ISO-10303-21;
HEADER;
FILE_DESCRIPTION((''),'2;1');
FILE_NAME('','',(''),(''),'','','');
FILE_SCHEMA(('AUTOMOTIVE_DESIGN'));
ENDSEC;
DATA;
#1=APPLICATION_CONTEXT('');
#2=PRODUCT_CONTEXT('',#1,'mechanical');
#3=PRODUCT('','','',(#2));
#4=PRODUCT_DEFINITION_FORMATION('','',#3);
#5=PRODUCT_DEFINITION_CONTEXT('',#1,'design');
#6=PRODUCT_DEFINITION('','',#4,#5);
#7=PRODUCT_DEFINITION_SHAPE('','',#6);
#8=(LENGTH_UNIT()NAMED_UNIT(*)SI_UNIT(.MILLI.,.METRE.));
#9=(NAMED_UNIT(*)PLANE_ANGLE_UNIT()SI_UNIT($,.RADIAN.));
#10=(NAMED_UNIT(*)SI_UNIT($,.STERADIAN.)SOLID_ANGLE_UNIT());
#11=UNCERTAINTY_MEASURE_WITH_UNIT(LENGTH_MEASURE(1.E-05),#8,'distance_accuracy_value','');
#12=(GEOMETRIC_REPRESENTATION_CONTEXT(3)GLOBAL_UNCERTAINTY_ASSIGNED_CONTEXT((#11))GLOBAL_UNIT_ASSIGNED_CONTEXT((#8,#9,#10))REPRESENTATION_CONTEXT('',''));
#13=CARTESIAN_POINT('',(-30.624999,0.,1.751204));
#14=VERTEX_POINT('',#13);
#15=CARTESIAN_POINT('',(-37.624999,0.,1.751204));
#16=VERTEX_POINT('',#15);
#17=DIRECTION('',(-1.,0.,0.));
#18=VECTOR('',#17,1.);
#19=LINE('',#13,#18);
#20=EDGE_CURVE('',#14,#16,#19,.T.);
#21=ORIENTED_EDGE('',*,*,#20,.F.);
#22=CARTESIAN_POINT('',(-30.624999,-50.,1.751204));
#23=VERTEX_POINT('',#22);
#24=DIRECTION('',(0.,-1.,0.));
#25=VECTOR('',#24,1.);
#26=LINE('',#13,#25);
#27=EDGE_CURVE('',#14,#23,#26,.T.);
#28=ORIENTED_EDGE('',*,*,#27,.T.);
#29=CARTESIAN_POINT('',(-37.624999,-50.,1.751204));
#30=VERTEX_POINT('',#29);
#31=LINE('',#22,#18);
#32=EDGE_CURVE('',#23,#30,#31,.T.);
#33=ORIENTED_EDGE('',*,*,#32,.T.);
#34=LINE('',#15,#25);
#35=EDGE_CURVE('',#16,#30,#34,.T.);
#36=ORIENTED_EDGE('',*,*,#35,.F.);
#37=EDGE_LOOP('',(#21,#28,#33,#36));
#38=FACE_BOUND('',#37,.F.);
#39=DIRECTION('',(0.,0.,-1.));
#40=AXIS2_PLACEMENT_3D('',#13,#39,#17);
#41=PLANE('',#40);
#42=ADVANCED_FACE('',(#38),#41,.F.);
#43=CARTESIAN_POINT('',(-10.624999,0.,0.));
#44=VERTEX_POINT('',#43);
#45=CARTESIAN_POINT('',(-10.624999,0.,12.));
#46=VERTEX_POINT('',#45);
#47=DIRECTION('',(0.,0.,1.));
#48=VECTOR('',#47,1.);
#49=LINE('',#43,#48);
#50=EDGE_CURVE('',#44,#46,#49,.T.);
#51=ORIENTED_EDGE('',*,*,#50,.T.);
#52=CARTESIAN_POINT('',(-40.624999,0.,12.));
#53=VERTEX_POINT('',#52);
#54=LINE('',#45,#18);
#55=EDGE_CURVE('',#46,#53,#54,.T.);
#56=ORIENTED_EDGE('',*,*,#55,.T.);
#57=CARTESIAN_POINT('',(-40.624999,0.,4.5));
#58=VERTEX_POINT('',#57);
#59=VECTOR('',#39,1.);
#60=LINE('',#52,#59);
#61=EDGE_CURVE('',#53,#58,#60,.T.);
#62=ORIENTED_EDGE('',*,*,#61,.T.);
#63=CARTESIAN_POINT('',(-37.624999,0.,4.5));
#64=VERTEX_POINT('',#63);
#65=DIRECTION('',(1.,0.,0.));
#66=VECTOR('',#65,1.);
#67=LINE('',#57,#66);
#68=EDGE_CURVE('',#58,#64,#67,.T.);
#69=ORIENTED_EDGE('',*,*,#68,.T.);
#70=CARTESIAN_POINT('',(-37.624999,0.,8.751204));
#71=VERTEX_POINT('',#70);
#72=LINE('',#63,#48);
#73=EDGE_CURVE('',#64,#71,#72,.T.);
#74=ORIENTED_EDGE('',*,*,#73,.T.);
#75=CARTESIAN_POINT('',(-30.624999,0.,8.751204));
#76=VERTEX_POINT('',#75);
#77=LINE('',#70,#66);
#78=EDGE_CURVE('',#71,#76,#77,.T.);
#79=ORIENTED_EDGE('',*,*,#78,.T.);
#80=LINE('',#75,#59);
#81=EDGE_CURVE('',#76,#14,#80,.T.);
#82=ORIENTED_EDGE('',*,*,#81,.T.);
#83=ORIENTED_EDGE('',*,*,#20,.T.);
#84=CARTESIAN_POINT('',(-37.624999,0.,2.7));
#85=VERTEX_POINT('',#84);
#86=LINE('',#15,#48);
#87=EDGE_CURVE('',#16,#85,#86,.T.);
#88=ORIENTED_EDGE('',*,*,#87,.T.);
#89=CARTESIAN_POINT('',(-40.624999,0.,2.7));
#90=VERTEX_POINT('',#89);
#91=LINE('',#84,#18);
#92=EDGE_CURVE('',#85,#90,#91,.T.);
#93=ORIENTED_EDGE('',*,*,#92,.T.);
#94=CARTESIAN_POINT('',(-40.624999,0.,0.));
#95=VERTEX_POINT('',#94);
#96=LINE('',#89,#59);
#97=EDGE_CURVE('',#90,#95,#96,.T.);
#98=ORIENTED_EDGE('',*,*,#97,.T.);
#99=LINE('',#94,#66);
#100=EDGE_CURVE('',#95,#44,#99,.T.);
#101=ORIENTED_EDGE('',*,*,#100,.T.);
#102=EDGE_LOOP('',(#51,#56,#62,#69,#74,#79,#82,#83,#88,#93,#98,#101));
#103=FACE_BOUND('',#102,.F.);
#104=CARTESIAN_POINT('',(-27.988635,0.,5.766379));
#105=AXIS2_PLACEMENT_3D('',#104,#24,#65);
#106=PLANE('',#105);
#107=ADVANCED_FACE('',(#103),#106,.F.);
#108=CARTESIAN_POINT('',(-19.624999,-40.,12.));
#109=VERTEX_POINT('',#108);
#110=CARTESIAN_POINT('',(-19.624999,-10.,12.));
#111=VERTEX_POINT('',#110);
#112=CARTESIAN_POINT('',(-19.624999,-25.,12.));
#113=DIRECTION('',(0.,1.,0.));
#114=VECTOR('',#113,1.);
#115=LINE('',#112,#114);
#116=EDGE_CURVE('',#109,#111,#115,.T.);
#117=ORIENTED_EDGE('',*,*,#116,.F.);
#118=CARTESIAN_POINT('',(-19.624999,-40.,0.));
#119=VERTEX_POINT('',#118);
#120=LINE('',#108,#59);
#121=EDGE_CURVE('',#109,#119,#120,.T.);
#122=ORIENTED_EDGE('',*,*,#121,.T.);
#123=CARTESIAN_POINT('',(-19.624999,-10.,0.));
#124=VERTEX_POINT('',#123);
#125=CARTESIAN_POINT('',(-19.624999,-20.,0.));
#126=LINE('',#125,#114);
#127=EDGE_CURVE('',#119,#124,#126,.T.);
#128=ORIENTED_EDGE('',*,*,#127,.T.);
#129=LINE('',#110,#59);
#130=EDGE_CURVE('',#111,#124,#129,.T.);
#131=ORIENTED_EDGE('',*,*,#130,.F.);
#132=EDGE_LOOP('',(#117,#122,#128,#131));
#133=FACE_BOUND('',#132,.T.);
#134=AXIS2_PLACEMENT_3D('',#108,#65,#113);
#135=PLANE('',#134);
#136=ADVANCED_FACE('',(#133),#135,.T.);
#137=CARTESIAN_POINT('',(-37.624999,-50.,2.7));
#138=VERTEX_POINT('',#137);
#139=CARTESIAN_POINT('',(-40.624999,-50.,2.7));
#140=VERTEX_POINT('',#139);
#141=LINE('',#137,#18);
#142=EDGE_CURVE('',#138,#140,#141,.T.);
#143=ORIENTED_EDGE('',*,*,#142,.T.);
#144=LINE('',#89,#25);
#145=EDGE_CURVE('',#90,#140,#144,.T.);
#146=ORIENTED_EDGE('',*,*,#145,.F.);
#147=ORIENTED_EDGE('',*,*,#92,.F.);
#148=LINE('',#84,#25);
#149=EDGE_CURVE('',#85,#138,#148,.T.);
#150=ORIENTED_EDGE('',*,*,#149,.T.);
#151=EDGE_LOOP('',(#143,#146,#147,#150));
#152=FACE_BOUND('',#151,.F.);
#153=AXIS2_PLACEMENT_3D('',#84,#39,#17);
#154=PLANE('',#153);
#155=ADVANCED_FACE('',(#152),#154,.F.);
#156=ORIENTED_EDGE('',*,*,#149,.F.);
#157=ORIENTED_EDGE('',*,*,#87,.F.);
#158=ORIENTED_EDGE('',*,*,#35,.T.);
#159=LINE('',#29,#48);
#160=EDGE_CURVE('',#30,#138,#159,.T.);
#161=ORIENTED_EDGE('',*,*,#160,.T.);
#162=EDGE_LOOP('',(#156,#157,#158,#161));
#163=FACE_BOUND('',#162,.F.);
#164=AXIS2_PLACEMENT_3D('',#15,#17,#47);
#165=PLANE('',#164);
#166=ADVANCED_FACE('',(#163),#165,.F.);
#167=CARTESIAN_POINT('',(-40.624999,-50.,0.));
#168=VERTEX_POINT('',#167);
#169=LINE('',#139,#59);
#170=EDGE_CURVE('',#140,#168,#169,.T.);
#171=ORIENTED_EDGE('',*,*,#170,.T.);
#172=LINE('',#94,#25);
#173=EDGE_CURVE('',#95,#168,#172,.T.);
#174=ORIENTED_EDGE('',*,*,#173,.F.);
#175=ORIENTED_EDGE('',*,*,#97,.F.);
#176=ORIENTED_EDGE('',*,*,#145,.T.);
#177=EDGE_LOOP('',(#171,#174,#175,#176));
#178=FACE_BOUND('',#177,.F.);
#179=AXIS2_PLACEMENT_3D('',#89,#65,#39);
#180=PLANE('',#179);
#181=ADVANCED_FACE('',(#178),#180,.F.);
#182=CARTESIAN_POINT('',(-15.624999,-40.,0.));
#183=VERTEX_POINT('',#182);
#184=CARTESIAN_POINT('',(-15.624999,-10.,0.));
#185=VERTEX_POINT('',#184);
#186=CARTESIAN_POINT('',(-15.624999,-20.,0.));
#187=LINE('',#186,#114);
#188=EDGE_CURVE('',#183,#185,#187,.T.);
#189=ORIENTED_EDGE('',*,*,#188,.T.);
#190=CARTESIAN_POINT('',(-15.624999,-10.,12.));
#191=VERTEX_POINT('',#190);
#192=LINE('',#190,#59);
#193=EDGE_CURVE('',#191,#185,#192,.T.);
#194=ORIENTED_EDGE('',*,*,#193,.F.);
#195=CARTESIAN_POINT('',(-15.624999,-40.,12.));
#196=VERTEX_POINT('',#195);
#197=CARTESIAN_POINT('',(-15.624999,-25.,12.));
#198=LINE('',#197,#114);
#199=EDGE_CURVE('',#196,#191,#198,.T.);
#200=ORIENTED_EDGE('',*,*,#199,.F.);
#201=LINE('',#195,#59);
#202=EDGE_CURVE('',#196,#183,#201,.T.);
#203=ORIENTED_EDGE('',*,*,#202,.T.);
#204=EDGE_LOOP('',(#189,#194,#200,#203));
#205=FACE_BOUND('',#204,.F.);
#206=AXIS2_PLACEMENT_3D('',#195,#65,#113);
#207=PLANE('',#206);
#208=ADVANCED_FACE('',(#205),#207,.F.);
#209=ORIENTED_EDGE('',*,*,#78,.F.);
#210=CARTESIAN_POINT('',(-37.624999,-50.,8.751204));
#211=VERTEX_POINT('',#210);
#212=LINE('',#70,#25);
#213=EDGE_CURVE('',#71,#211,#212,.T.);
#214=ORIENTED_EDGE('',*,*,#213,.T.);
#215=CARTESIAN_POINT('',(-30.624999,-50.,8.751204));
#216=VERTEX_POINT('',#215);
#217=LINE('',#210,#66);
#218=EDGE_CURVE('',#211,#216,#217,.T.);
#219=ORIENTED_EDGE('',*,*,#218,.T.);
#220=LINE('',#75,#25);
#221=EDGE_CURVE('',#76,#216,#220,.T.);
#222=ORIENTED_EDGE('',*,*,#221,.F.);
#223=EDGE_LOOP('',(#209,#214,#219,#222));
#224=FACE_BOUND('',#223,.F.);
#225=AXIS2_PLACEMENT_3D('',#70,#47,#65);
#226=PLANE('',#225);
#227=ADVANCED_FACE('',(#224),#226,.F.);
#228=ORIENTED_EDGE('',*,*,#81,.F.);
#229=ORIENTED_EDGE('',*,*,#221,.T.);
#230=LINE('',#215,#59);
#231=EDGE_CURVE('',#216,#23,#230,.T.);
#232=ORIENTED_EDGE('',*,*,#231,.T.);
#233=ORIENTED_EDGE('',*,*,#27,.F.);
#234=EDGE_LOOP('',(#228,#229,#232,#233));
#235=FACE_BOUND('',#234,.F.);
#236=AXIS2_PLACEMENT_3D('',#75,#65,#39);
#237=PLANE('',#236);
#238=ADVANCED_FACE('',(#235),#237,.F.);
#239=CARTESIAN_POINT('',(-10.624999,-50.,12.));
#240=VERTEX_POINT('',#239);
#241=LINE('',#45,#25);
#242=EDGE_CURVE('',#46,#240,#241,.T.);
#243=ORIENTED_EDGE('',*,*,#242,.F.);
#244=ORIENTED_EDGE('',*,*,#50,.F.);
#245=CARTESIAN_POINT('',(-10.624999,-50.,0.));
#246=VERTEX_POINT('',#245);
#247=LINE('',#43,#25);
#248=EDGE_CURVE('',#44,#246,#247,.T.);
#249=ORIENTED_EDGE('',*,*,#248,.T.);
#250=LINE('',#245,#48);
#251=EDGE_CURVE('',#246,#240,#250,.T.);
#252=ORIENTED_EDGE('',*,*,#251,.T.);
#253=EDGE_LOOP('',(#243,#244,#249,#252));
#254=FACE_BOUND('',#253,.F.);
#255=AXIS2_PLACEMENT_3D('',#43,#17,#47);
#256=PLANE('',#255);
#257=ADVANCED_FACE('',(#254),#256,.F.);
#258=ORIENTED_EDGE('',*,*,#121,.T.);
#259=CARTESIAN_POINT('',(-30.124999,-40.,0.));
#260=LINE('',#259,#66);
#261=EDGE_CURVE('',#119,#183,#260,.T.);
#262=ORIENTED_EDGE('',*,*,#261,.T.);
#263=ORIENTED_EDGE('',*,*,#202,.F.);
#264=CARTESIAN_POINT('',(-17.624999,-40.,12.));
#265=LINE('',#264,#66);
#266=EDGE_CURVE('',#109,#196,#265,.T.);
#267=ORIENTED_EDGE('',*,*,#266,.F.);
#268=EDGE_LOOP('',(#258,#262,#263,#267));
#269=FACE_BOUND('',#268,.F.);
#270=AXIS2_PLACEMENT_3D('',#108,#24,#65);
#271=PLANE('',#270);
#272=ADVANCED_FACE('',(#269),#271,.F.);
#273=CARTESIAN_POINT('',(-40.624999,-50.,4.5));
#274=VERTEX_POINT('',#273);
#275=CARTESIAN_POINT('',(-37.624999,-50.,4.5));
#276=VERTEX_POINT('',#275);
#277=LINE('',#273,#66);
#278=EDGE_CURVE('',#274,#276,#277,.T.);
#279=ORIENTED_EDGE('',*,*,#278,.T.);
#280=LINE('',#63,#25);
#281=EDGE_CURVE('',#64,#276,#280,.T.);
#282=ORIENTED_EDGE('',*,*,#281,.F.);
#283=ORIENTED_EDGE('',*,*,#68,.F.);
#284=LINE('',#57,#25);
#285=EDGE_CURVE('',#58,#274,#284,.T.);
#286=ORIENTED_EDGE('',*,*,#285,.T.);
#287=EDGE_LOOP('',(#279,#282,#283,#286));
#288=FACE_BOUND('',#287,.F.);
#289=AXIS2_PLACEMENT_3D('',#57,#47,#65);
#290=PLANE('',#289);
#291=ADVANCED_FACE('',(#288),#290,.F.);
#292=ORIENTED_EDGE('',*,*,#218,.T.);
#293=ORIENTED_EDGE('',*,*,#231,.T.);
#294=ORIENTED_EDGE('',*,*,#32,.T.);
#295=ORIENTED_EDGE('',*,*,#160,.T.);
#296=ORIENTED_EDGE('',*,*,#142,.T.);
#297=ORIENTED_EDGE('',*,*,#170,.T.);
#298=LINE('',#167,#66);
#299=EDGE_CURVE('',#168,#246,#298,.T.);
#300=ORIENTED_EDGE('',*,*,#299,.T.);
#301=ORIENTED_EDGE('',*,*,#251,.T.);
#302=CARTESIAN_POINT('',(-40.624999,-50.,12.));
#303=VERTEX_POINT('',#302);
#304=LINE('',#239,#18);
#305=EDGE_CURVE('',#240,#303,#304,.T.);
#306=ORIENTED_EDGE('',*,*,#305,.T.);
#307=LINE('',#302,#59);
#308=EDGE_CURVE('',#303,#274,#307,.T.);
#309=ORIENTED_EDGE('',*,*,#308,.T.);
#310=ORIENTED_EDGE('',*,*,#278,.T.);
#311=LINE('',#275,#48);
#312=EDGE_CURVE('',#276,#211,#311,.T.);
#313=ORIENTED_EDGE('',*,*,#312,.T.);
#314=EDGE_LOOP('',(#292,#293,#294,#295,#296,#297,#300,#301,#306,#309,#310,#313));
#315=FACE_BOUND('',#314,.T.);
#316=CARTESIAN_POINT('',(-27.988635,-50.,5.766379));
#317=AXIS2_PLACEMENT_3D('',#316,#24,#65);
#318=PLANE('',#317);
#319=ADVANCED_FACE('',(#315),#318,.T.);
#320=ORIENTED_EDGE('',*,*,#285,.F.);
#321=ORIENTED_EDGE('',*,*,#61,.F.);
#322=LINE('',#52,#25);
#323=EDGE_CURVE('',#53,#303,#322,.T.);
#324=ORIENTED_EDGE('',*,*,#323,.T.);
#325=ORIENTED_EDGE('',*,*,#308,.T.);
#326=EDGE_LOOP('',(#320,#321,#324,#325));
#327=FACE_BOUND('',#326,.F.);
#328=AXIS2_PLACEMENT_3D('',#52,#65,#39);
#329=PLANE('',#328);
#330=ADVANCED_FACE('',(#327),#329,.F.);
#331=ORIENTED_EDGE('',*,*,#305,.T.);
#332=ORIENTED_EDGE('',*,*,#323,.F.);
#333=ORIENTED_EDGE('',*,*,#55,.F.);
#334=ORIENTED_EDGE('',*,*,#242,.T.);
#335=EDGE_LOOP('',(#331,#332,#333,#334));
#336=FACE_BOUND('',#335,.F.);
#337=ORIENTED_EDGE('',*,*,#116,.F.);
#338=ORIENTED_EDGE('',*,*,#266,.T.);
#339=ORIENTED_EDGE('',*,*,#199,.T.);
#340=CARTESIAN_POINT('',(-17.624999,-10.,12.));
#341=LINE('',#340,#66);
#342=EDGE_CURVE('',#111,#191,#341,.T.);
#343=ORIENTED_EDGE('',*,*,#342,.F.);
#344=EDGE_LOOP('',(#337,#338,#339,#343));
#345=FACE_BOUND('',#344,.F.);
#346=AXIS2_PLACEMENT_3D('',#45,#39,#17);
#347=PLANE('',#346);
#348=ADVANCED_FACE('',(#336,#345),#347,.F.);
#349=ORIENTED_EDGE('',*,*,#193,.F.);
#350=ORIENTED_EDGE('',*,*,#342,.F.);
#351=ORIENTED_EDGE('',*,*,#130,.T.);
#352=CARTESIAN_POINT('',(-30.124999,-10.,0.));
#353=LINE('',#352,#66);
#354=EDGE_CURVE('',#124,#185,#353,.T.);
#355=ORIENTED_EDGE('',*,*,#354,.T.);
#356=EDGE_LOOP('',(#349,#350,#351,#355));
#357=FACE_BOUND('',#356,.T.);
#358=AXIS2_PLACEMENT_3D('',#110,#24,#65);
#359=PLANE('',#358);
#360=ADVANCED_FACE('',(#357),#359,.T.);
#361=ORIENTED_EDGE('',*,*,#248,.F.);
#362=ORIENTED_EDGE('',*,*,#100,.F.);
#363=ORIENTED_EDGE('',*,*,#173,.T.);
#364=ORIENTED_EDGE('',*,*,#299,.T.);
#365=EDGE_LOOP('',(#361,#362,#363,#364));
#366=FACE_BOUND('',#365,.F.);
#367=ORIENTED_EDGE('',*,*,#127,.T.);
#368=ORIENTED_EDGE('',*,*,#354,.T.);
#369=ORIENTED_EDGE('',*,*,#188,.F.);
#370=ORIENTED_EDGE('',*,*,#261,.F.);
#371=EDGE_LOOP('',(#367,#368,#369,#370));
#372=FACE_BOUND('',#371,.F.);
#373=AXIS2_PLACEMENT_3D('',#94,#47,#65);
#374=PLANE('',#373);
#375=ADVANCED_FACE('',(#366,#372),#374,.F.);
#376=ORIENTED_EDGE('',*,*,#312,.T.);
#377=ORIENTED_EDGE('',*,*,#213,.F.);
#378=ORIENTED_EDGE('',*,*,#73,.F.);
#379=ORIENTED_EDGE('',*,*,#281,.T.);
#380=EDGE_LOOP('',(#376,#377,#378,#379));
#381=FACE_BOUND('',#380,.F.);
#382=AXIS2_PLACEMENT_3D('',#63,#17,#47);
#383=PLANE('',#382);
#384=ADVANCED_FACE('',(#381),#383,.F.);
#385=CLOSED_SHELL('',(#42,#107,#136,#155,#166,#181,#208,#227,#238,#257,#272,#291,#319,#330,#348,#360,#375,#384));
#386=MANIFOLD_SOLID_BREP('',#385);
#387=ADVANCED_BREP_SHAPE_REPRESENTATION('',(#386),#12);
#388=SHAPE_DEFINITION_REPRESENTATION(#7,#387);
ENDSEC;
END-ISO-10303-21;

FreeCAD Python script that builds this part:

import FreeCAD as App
import Part
import Sketcher
Q = App.Units.Quantity

doc = App.newDocument("Part")
params = doc.addObject("Spreadsheet::Sheet", "Params")
for row, (alias, value) in enumerate([
    ("sketch1_width", "30 mm"),
    ("sketch1_width2", "3 mm"),
    ("sketch1_width3", "7 mm"),
    ("sketch1_height", "12 mm"),
    ("sketch1_height2", "7.5 mm"),
    ("pad1_length", "50 mm"),
    ("sketch2_width", "4 mm"),
    ("sketch2_height", "30 mm"),
    ("pocket1_length", "25 mm"),
], start=1):
    params.set(f"A{row}", alias)
    params.set(f"B{row}", "=" + value)
    params.setAlias(f"B{row}", alias)

body = doc.addObject("PartDesign::Body", "Body")

sketch1 = body.newObject("Sketcher::SketchObject", "Sketch")
sketch1.AttachmentSupport = (doc.getObject("XZ_Plane"), [""])
sketch1.MapMode = "FlatFace"
sketch1.addGeometry(Part.LineSegment(App.Vector(-10.6, 12, 0), App.Vector(-40.6, 12, 0)), False)
sketch1.addGeometry(Part.LineSegment(App.Vector(-40.6, 12, 0), App.Vector(-40.6, 4.5, 0)), False)
sketch1.addGeometry(Part.LineSegment(App.Vector(-40.6, 4.5, 0), App.Vector(-37.6, 4.5, 0)), False)
sketch1.addGeometry(Part.LineSegment(App.Vector(-37.6, 4.5, 0), App.Vector(-37.6, 8.8, 0)), False)
sketch1.addGeometry(Part.LineSegment(App.Vector(-37.6, 8.8, 0), App.Vector(-30.6, 8.8, 0)), False)
sketch1.addGeometry(Part.LineSegment(App.Vector(-30.6, 8.8, 0), App.Vector(-30.6, 1.8, 0)), False)
sketch1.addGeometry(Part.LineSegment(App.Vector(-30.6, 1.8, 0), App.Vector(-37.6, 1.8, 0)), False)
sketch1.addGeometry(Part.LineSegment(App.Vector(-37.6, 1.8, 0), App.Vector(-37.6, 2.7, 0)), False)
sketch1.addGeometry(Part.LineSegment(App.Vector(-37.6, 2.7, 0), App.Vector(-40.6, 2.7, 0)), False)
sketch1.addGeometry(Part.LineSegment(App.Vector(-40.6, 2.7, 0), App.Vector(-40.6, 0, 0)), False)
sketch1.addGeometry(Part.LineSegment(App.Vector(-40.6, 0, 0), App.Vector(-10.6, 0, 0)), False)
sketch1.addGeometry(Part.LineSegment(App.Vector(-10.6, 0, 0), App.Vector(-10.6, 12, 0)), False)
sketch1.addConstraint(Sketcher.Constraint("Coincident", 0, 2, 1, 1))
sketch1.addConstraint(Sketcher.Constraint("Coincident", 1, 2, 2, 1))
sketch1.addConstraint(Sketcher.Constraint("Coincident", 2, 2, 3, 1))
sketch1.addConstraint(Sketcher.Constraint("Coincident", 3, 2, 4, 1))
sketch1.addConstraint(Sketcher.Constraint("Coincident", 4, 2, 5, 1))
sketch1.addConstraint(Sketcher.Constraint("Coincident", 5, 2, 6, 1))
sketch1.addConstraint(Sketcher.Constraint("Coincident", 6, 2, 7, 1))
sketch1.addConstraint(Sketcher.Constraint("Coincident", 7, 2, 8, 1))
sketch1.addConstraint(Sketcher.Constraint("Coincident", 8, 2, 9, 1))
sketch1.addConstraint(Sketcher.Constraint("Coincident", 9, 2, 10, 1))
sketch1.addConstraint(Sketcher.Constraint("Coincident", 10, 2, 11, 1))
sketch1.addConstraint(Sketcher.Constraint("Coincident", 11, 2, 0, 1))
sketch1.addConstraint(Sketcher.Constraint("Horizontal", 0))
sketch1.addConstraint(Sketcher.Constraint("Vertical", 1))
sketch1.addConstraint(Sketcher.Constraint("Horizontal", 2))
sketch1.addConstraint(Sketcher.Constraint("Vertical", 3))
sketch1.addConstraint(Sketcher.Constraint("Horizontal", 4))
sketch1.addConstraint(Sketcher.Constraint("Vertical", 5))
sketch1.addConstraint(Sketcher.Constraint("Horizontal", 6))
sketch1.addConstraint(Sketcher.Constraint("Vertical", 7))
sketch1.addConstraint(Sketcher.Constraint("Horizontal", 8))
sketch1.addConstraint(Sketcher.Constraint("Vertical", 9))
sketch1.addConstraint(Sketcher.Constraint("Horizontal", 10))
sketch1.addConstraint(Sketcher.Constraint("Vertical", 11))
sketch1.addConstraint(Sketcher.Constraint("PointOnObject", 9, 2, -1))
sketch1.addConstraint(Sketcher.Constraint("Vertical", 3, 2, 6, 2))
sketch1.addConstraint(Sketcher.Constraint("Vertical", 1, 2, 8, 2))
sketch1.addConstraint(Sketcher.Constraint("Equal", 6, 5))
sketch1.addConstraint(Sketcher.Constraint("DistanceX", 0, 2, 0, 1, Q("30 mm")))
sketch1.addConstraint(Sketcher.Constraint("DistanceX", 2, 1, 2, 2, Q("3 mm")))
sketch1.addConstraint(Sketcher.Constraint("DistanceX", 4, 1, 4, 2, Q("7 mm")))
sketch1.addConstraint(Sketcher.Constraint("DistanceY", 11, 1, 11, 2, Q("12 mm")))
sketch1.addConstraint(Sketcher.Constraint("DistanceY", 1, 2, 1, 1, Q("7.5 mm")))
sketch1.addConstraint(Sketcher.Constraint("DistanceY", 9, 2, 9, 1, Q("2.7 mm")))
sketch1.addConstraint(Sketcher.Constraint("DistanceX", 0, 2, -1, 1, Q("40.624999 mm")))
sketch1.addConstraint(Sketcher.Constraint("DistanceY", 3, 1, 3, 2, Q("4.251204 mm")))
sketch1.setExpression("Constraints[28]", "Params.sketch1_width")
sketch1.setExpression("Constraints[29]", "Params.sketch1_width2")
sketch1.setExpression("Constraints[30]", "Params.sketch1_width3")
sketch1.setExpression("Constraints[31]", "Params.sketch1_height")
sketch1.setExpression("Constraints[32]", "Params.sketch1_height2")
pad1 = body.newObject("PartDesign::Pad", "Pad")
pad1.Profile = sketch1
pad1.setExpression("Length", "Params.pad1_length")

sketch2 = body.newObject("Sketcher::SketchObject", "Sketch001")
sketch2.AttachmentSupport = (doc.getObject("XY_Plane"), [""])
sketch2.MapMode = "FlatFace"
sketch2.AttachmentOffset = App.Placement(App.Vector(0, 0, 12), App.Rotation())
sketch2.addGeometry(Part.LineSegment(App.Vector(-19.6, -10, 0), App.Vector(-19.6, -40, 0)), False)
sketch2.addGeometry(Part.LineSegment(App.Vector(-19.6, -40, 0), App.Vector(-15.6, -40, 0)), False)
sketch2.addGeometry(Part.LineSegment(App.Vector(-15.6, -40, 0), App.Vector(-15.6, -10, 0)), False)
sketch2.addGeometry(Part.LineSegment(App.Vector(-15.6, -10, 0), App.Vector(-19.6, -10, 0)), False)
sketch2.addConstraint(Sketcher.Constraint("Coincident", 0, 2, 1, 1))
sketch2.addConstraint(Sketcher.Constraint("Coincident", 1, 2, 2, 1))
sketch2.addConstraint(Sketcher.Constraint("Coincident", 2, 2, 3, 1))
sketch2.addConstraint(Sketcher.Constraint("Coincident", 3, 2, 0, 1))
sketch2.addConstraint(Sketcher.Constraint("Vertical", 0))
sketch2.addConstraint(Sketcher.Constraint("Horizontal", 1))
sketch2.addConstraint(Sketcher.Constraint("Vertical", 2))
sketch2.addConstraint(Sketcher.Constraint("Horizontal", 3))
sketch2.addConstraint(Sketcher.Constraint("DistanceX", 1, 1, 1, 2, Q("4 mm")))
sketch2.addConstraint(Sketcher.Constraint("DistanceY", 0, 2, 0, 1, Q("30 mm")))
sketch2.addConstraint(Sketcher.Constraint("DistanceY", 0, 2, -1, 1, Q("40 mm")))
sketch2.addConstraint(Sketcher.Constraint("DistanceX", 0, 2, -1, 1, Q("19.624999 mm")))
sketch2.setExpression("Constraints[8]", "Params.sketch2_width")
sketch2.setExpression("Constraints[9]", "Params.sketch2_height")
pocket1 = body.newObject("PartDesign::Pocket", "Pocket")
pocket1.Profile = sketch2
pocket1.setExpression("Length", "Params.pocket1_length")

doc.recompute()
